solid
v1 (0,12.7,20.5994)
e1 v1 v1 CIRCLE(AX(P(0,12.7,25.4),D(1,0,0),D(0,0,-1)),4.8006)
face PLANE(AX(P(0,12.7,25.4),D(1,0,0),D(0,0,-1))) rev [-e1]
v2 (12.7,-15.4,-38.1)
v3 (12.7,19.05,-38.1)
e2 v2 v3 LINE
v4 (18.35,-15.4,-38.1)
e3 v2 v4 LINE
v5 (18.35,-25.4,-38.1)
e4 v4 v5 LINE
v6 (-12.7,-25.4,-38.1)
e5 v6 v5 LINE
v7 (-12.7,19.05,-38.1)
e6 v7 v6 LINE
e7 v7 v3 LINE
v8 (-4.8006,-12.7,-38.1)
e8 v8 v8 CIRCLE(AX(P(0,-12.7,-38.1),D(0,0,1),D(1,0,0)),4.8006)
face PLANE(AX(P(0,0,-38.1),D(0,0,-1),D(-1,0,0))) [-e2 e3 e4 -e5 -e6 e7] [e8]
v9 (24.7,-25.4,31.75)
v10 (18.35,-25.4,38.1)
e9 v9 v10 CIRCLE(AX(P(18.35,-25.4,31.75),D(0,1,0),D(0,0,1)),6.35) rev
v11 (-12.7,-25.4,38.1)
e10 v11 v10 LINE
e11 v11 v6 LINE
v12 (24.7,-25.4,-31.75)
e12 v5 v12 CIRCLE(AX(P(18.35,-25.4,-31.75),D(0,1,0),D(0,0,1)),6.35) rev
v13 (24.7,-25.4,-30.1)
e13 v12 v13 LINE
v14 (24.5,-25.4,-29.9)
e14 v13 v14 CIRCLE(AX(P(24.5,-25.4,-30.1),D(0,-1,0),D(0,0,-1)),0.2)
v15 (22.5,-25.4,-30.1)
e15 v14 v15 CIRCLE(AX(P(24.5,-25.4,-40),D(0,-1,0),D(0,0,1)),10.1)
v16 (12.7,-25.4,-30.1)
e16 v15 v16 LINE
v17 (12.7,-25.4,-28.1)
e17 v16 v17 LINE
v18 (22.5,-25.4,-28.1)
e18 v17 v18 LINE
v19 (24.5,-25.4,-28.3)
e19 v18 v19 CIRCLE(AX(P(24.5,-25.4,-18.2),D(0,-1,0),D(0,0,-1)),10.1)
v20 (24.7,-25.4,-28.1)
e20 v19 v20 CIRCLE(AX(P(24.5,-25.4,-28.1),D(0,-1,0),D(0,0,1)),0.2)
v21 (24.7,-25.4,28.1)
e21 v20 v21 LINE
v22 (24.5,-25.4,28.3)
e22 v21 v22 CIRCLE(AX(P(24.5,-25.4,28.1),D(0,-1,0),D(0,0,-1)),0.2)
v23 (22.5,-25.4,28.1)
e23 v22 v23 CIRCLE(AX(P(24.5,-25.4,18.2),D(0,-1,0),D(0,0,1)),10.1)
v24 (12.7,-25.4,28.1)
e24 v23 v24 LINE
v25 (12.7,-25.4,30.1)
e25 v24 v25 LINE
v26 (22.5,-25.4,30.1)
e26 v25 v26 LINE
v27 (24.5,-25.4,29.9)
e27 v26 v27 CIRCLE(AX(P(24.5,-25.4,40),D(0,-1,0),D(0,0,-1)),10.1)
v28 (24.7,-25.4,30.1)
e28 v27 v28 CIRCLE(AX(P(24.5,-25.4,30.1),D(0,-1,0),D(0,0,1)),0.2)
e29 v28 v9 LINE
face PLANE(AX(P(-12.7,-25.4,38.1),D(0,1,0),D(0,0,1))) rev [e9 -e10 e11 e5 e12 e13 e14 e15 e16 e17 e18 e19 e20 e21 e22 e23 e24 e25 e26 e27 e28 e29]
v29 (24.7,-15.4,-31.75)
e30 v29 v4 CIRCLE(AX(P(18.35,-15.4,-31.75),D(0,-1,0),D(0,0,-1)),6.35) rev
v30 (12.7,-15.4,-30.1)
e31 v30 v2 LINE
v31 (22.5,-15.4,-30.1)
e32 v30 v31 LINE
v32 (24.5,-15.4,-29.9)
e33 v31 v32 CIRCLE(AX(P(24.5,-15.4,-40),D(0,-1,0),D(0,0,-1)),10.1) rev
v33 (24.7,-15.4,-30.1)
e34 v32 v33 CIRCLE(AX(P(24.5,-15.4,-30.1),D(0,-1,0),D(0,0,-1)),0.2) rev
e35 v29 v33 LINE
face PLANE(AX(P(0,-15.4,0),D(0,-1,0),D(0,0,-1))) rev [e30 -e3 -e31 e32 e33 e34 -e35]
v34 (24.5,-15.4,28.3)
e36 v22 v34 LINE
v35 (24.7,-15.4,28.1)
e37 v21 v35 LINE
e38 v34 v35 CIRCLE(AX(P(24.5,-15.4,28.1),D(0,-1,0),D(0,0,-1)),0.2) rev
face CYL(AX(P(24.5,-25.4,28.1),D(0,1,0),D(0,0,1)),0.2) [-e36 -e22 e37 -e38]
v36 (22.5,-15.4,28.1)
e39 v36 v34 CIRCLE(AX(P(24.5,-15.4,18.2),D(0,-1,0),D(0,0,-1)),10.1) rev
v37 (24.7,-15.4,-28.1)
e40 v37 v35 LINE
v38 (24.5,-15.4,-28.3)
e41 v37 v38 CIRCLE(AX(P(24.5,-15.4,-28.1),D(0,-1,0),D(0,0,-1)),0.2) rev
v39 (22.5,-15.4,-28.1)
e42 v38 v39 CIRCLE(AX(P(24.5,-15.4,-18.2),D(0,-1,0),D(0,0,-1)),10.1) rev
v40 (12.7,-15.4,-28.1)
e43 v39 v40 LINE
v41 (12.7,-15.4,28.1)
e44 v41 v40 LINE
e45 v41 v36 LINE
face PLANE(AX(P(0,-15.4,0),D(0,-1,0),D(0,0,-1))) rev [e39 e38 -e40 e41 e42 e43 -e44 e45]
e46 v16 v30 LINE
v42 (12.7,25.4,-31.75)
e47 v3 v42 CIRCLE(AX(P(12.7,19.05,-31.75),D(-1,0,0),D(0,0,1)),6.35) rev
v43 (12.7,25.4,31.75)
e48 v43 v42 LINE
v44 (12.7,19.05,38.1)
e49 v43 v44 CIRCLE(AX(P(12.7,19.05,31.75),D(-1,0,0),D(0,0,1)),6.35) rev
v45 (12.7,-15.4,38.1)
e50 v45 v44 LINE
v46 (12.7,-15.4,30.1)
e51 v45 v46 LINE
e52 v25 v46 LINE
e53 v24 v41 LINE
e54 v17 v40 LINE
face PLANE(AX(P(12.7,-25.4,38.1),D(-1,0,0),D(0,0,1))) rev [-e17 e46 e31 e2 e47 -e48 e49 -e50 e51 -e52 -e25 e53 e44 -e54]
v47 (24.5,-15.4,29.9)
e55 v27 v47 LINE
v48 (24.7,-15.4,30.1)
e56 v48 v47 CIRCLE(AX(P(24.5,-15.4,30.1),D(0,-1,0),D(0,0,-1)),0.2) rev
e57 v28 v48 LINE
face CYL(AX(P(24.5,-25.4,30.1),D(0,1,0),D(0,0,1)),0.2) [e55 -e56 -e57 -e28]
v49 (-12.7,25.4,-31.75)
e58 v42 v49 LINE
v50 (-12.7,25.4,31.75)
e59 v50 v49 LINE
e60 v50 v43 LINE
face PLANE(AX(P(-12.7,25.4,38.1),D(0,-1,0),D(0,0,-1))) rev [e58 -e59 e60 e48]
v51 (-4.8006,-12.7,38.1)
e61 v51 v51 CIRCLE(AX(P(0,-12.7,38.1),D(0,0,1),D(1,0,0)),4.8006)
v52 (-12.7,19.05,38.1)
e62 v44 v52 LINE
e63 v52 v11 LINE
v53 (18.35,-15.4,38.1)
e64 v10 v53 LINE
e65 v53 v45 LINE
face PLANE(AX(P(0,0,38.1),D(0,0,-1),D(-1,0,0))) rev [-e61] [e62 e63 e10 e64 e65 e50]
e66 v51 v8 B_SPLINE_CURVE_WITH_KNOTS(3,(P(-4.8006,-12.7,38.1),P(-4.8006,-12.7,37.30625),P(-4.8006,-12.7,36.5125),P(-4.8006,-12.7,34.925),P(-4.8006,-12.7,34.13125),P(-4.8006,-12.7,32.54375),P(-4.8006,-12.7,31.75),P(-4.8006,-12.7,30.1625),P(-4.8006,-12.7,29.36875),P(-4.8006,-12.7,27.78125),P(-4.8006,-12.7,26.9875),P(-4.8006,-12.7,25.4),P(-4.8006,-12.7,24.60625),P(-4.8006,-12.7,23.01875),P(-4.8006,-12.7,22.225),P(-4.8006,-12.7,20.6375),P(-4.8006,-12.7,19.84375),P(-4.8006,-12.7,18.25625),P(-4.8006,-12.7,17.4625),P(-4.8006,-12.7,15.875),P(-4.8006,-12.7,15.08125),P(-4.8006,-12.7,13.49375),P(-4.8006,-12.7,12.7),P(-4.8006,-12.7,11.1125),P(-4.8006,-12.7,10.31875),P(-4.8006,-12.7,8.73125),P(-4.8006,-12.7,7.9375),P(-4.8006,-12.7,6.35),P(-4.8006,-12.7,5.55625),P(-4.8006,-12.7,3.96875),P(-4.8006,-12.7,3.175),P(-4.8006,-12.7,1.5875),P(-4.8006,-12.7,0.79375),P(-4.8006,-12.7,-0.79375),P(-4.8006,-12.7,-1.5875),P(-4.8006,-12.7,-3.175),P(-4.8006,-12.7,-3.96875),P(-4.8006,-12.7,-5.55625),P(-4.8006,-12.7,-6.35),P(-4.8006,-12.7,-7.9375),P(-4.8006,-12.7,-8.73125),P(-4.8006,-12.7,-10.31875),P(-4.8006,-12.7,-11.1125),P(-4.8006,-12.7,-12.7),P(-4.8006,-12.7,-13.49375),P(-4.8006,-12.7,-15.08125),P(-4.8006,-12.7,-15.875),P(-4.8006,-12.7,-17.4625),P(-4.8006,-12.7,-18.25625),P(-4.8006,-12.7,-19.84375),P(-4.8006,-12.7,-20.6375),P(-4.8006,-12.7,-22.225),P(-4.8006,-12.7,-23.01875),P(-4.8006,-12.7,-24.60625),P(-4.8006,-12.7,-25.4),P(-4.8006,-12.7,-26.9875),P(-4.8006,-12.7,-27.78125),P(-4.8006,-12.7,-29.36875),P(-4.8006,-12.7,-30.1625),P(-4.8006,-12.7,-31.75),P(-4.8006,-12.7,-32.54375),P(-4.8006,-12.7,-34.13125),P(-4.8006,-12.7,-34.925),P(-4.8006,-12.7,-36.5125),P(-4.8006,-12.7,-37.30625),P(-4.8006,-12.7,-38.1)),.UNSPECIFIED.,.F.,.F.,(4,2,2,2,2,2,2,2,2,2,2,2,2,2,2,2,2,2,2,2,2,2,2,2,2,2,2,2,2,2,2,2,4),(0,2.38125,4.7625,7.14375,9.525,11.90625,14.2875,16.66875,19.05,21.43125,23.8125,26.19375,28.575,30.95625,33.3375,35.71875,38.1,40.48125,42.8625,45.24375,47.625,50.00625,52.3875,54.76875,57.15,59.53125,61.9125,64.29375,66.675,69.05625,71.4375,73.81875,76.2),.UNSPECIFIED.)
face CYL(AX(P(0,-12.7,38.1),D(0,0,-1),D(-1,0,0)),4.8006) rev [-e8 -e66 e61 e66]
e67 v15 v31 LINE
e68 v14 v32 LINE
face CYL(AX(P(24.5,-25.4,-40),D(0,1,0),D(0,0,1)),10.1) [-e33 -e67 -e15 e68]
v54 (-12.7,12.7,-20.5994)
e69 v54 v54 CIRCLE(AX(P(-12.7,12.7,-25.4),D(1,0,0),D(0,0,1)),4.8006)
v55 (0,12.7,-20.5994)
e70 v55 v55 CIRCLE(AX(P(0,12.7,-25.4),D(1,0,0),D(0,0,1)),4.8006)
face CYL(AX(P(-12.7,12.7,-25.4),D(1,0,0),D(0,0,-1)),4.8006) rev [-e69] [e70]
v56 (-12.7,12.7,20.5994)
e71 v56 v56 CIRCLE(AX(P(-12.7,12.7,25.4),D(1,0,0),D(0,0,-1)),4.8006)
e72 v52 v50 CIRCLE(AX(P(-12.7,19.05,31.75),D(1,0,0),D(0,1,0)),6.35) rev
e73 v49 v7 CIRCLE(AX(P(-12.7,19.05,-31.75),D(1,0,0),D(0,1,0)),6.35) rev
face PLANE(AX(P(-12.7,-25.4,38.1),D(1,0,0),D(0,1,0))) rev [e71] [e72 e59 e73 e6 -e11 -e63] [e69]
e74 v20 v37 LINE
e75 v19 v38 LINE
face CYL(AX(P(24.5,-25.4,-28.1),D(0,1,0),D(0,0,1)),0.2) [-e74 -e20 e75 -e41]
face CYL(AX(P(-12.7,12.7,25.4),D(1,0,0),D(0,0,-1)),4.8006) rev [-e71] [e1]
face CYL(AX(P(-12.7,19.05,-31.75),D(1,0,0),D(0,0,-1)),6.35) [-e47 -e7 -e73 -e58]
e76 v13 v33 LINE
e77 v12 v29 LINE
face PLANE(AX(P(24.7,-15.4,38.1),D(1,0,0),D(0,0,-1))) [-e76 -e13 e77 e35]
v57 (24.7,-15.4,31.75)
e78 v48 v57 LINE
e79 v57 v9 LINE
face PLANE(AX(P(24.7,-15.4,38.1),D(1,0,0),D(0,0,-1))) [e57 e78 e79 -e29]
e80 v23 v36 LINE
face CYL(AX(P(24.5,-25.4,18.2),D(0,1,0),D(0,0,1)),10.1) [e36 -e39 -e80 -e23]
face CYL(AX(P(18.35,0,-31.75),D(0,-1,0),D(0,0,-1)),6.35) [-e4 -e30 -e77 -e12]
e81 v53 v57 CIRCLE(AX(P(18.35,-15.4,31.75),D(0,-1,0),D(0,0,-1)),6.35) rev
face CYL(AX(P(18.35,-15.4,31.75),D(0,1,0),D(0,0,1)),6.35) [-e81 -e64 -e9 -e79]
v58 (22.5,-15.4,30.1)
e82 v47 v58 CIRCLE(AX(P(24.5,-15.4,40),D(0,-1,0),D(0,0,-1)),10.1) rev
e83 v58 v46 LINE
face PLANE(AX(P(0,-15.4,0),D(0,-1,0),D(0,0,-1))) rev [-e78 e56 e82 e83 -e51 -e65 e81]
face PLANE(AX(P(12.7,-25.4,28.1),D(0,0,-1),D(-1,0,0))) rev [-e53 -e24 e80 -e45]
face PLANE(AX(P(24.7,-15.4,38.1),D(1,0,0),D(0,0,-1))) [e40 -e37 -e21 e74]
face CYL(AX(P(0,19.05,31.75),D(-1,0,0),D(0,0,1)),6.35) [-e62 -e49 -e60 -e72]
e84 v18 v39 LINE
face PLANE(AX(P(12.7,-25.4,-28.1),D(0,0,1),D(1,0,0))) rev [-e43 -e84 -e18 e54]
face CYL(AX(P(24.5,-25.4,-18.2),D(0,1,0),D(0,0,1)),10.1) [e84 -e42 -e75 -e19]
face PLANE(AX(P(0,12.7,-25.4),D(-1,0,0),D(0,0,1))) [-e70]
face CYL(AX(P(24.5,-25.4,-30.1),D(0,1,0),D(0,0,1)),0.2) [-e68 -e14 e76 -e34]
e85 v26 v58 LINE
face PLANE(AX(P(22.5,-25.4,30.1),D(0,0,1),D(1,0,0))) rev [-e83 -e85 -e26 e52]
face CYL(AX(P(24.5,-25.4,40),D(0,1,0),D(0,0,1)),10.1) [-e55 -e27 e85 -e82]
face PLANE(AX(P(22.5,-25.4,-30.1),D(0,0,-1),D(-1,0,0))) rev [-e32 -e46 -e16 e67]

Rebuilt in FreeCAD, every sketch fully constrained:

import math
import FreeCAD as App
import Part
import Sketcher


def edges_at(feature, points):
    """Names of the edges that pass closest to the given points."""
    edges = feature.Shape.Edges
    near = lambda p: min(range(len(edges)), key=lambda i: edges[i].distToShape(Part.Vertex(*p))[0])
    return sorted({f"Edge{near(p) + 1}" for p in points})


def add_polygon(sketch, points):
    """Adds a closed chain of lines whose ends are joined by coincident constraints."""
    first, n = sketch.GeometryCount, len(points)
    for a, b in zip(points, points[1:] + points[:1]):
        sketch.addGeometry(Part.LineSegment(App.Vector(*a, 0), App.Vector(*b, 0)), False)
    for i in range(n):
        sketch.addConstraint(Sketcher.Constraint("Coincident", first + i, 2, first + (i + 1) % n, 1))

doc = App.newDocument("Part")
params = doc.addObject("Spreadsheet::Sheet", "Params")
for row, (alias, value) in enumerate([
    ("sketch1_width", "25.4 mm"),
    ("sketch1_height", "50.8 mm"),
    ("pad1_length", "76.2 mm"),
    ("sketch3_width", "12 mm"),
    ("sketch3_height", "76.2 mm"),
    ("pad2_length", "10 mm"),
    ("sketch4_radius", "0.2 mm"),
    ("sketch4_radius2", "10.1 mm"),
    ("sketch4_height", "2 mm"),
    ("sketch4_width", "9.8 mm"),
    ("fillet_radius", "6.35 mm"),
], start=1):
    params.set(f"A{row}", alias)
    params.set(f"B{row}", "=" + value)
    params.setAlias(f"B{row}", alias)

body = doc.addObject("PartDesign::Body", "Body")

# Sketch on XY plane
sketch1 = body.newObject("Sketcher::SketchObject", "Sketch")
sketch1.AttachmentSupport = (doc.getObject("XY_Plane"), [""])
sketch1.MapMode = "FlatFace"
add_polygon(sketch1, [(-12.7, 25.4), (-12.7, -25.4), (12.7, -25.4), (12.7, 25.4)])  # lines 0-3
sketch1.addGeometry(Part.Circle(App.Vector(0, -12.7, 0), App.Vector(0, 0, 1), 4.8), False)  # 4
sketch1.addConstraint([
    Sketcher.Constraint("Vertical", 0),
    Sketcher.Constraint("Horizontal", 1),
    Sketcher.Constraint("Vertical", 2),
    Sketcher.Constraint("Horizontal", 3),
    Sketcher.Constraint("Symmetric", 0, 2, 2, 2, -1, 1),
    Sketcher.Constraint("PointOnObject", 4, 3, -2),
    Sketcher.Constraint("DistanceX", 1, 1, 1, 2, 25.4),
    Sketcher.Constraint("DistanceY", 0, 2, 0, 1, 50.8),
    Sketcher.Constraint("Diameter", 4, 9.6012),
    Sketcher.Constraint("DistanceY", 4, 3, -1, 1, 12.7),
])
sketch1.setExpression("Constraints[10]", "Params.sketch1_width")
sketch1.setExpression("Constraints[11]", "Params.sketch1_height")
pad1 = body.newObject("PartDesign::Pad", "Pad")
pad1.Profile = sketch1
pad1.setExpression("Length", "Params.pad1_length")
pad1.Midplane = True

# Sketch on YZ plane
sketch2 = body.newObject("Sketcher::SketchObject", "Sketch001")
sketch2.AttachmentSupport = (doc.getObject("YZ_Plane"), [""])
sketch2.MapMode = "FlatFace"
sketch2.addGeometry([
    Part.Circle(App.Vector(12.7, 25.4, 0), App.Vector(0, 0, 1), 4.8),
    Part.Circle(App.Vector(12.7, -25.4, 0), App.Vector(0, 0, 1), 4.8),
], False)
sketch2.addConstraint([
    Sketcher.Constraint("Equal", 0, 1),
    Sketcher.Constraint("Symmetric", 0, 3, 1, 3, -1),
    Sketcher.Constraint("Diameter", 0, 9.6012),
    Sketcher.Constraint("DistanceX", -1, 1, 0, 3, 12.7),
    Sketcher.Constraint("DistanceY", -1, 1, 0, 3, 25.4),
])
pocket1 = body.newObject("PartDesign::Pocket", "Pocket")
pocket1.Profile = sketch2
pocket1.Type = "ThroughAll"

# Sketch on XZ plane
sketch3 = body.newObject("Sketcher::SketchObject", "Sketch002")
sketch3.AttachmentSupport = (doc.getObject("XZ_Plane"), [""])
sketch3.MapMode = "FlatFace"
sketch3.AttachmentOffset = App.Placement(App.Vector(0, 0, 25.4), App.Rotation())
add_polygon(sketch3, [(13, 38), (13, -38), (25, -38), (25, 38)])  # lines 0-3
sketch3.addConstraint([
    Sketcher.Constraint("Vertical", 0),
    Sketcher.Constraint("Horizontal", 1),
    Sketcher.Constraint("Vertical", 2),
    Sketcher.Constraint("Horizontal", 3),
    Sketcher.Constraint("DistanceX", 1, 1, 1, 2, 12.0),
    Sketcher.Constraint("DistanceY", 0, 2, 0, 1, 76.2),
    Sketcher.Constraint("DistanceX", -1, 1, 0, 2, 12.7),
    Sketcher.Constraint("DistanceY", 0, 2, -1, 1, 38.1),
])
sketch3.setExpression("Constraints[8]", "Params.sketch3_width")
sketch3.setExpression("Constraints[9]", "Params.sketch3_height")
pad2 = body.newObject("PartDesign::Pad", "Pad001")
pad2.Profile = sketch3
pad2.setExpression("Length", "Params.pad2_length")
pad2.Reversed = True

# Sketch on XZ plane
sketch4 = body.newObject("Sketcher::SketchObject", "Sketch003")
sketch4.AttachmentSupport = (doc.getObject("XZ_Plane"), [""])
sketch4.MapMode = "FlatFace"
sketch4.addGeometry([
    Part.LineSegment(App.Vector(24.7, -28.1, 0), App.Vector(24.7, -30.1, 0)),  # 0
    Part.ArcOfCircle(Part.Circle(App.Vector(24.5, -30.1, 0), App.Vector(0, 0, 1), 0.2), math.radians(0), math.radians(90)),  # 1
    Part.ArcOfCircle(Part.Circle(App.Vector(24.5, -40, 0), App.Vector(0, 0, 1), 10.1), math.radians(90), math.radians(101.42)),  # 2
    Part.LineSegment(App.Vector(22.5, -30.1, 0), App.Vector(12.7, -30.1, 0)),  # 3
    Part.LineSegment(App.Vector(12.7, -30.1, 0), App.Vector(12.7, -28.1, 0)),  # 4
    Part.LineSegment(App.Vector(12.7, -28.1, 0), App.Vector(22.5, -28.1, 0)),  # 5
    Part.ArcOfCircle(Part.Circle(App.Vector(24.5, -18.2, 0), App.Vector(0, 0, 1), 10.1), math.radians(-101.42), math.radians(-90)),  # 6
    Part.ArcOfCircle(Part.Circle(App.Vector(24.5, -28.1, 0), App.Vector(0, 0, 1), 0.2), math.radians(-90), math.radians(0)),  # 7
    Part.LineSegment(App.Vector(24.7, 30.1, 0), App.Vector(24.7, 28.1, 0)),  # 8
    Part.ArcOfCircle(Part.Circle(App.Vector(24.5, 28.1, 0), App.Vector(0, 0, 1), 0.2), math.radians(0), math.radians(90)),  # 9
    Part.ArcOfCircle(Part.Circle(App.Vector(24.5, 18.2, 0), App.Vector(0, 0, 1), 10.1), math.radians(90), math.radians(101.42)),  # 10
    Part.LineSegment(App.Vector(22.5, 28.1, 0), App.Vector(12.7, 28.1, 0)),  # 11
    Part.LineSegment(App.Vector(12.7, 28.1, 0), App.Vector(12.7, 30.1, 0)),  # 12
    Part.LineSegment(App.Vector(12.7, 30.1, 0), App.Vector(22.5, 30.1, 0)),  # 13
    Part.ArcOfCircle(Part.Circle(App.Vector(24.5, 40, 0), App.Vector(0, 0, 1), 10.1), math.radians(-101.42), math.radians(-90)),  # 14
    Part.ArcOfCircle(Part.Circle(App.Vector(24.5, 30.1, 0), App.Vector(0, 0, 1), 0.2), math.radians(-90), math.radians(0)),  # 15
], False)
sketch4.addConstraint([
    Sketcher.Constraint("Tangent", 0, 2, 1, 1),
    Sketcher.Constraint("Tangent", 1, 2, 2, 1),
    Sketcher.Constraint("Coincident", 2, 2, 3, 1),
    Sketcher.Constraint("Coincident", 3, 2, 4, 1),
    Sketcher.Constraint("Coincident", 4, 2, 5, 1),
    Sketcher.Constraint("Coincident", 5, 2, 6, 1),
    Sketcher.Constraint("Tangent", 6, 2, 7, 1),
    Sketcher.Constraint("Tangent", 7, 2, 0, 1),
    Sketcher.Constraint("Tangent", 8, 2, 9, 1),
    Sketcher.Constraint("Tangent", 9, 2, 10, 1),
    Sketcher.Constraint("Coincident", 10, 2, 11, 1),
    Sketcher.Constraint("Coincident", 11, 2, 12, 1),
    Sketcher.Constraint("Coincident", 12, 2, 13, 1),
    Sketcher.Constraint("Coincident", 13, 2, 14, 1),
    Sketcher.Constraint("Tangent", 14, 2, 15, 1),
    Sketcher.Constraint("Tangent", 15, 2, 8, 1),
    Sketcher.Constraint("Vertical", 0),
    Sketcher.Constraint("Horizontal", 3),
    Sketcher.Constraint("Vertical", 4),
    Sketcher.Constraint("Horizontal", 5),
    Sketcher.Constraint("Vertical", 8),
    Sketcher.Constraint("Horizontal", 11),
    Sketcher.Constraint("Vertical", 12),
    Sketcher.Constraint("Horizontal", 13),
    Sketcher.Constraint("Equal", 2, 6),
    Sketcher.Constraint("Equal", 1, 7),
    Sketcher.Constraint("Equal", 7, 9),
    Sketcher.Constraint("Equal", 6, 10),
    Sketcher.Constraint("Equal", 10, 14),
    Sketcher.Constraint("Equal", 9, 15),
    Sketcher.Constraint("Symmetric", 7, 3, 9, 3, -1),
    Sketcher.Constraint("Symmetric", 2, 3, 14, 3, -1),
    Sketcher.Constraint("Symmetric", 5, 2, 10, 2, -1),
    Sketcher.Constraint("Symmetric", 3, 2, 12, 2, -1),
    Sketcher.Constraint("Horizontal", 0, 2, 2, 2),
    Sketcher.Constraint("Horizontal", 7, 3, 4, 2),
    Sketcher.Constraint("Vertical", 1, 3, 2, 3),
    Sketcher.Constraint("Vertical", 2, 3, 6, 3),
    Sketcher.Constraint("Radius", 1, 0.2),
    Sketcher.Constraint("Radius", 2, 10.1),
    Sketcher.Constraint("DistanceY", 0, 2, 0, 1, 2.0),
    Sketcher.Constraint("DistanceX", 3, 2, 3, 1, 9.8),
    Sketcher.Constraint("DistanceY", 2, 3, -1, 1, 40.0),
    Sketcher.Constraint("DistanceX", -1, 1, 1, 3, 24.5),
])
sketch4.setExpression("Constraints[38]", "Params.sketch4_radius")
sketch4.setExpression("Constraints[39]", "Params.sketch4_radius2")
sketch4.setExpression("Constraints[40]", "Params.sketch4_height")
sketch4.setExpression("Constraints[41]", "Params.sketch4_width")
pocket2 = body.newObject("PartDesign::Pocket", "Pocket001")
pocket2.Profile = sketch4
pocket2.Type = "ThroughAll"
pocket2.Reversed = True
doc.recompute()

fillet = body.newObject("PartDesign::Fillet", "Fillet")
fillet.Base = (pocket2, edges_at(pocket2, [
    (24.7, -20.4, 38.1),
    (24.7, -20.4, -38.1),
    (0, 25.4, -38.1),
    (0, 25.4, 38.1),
]))
fillet.setExpression("Radius", "Params.fillet_radius")

doc.recompute()
